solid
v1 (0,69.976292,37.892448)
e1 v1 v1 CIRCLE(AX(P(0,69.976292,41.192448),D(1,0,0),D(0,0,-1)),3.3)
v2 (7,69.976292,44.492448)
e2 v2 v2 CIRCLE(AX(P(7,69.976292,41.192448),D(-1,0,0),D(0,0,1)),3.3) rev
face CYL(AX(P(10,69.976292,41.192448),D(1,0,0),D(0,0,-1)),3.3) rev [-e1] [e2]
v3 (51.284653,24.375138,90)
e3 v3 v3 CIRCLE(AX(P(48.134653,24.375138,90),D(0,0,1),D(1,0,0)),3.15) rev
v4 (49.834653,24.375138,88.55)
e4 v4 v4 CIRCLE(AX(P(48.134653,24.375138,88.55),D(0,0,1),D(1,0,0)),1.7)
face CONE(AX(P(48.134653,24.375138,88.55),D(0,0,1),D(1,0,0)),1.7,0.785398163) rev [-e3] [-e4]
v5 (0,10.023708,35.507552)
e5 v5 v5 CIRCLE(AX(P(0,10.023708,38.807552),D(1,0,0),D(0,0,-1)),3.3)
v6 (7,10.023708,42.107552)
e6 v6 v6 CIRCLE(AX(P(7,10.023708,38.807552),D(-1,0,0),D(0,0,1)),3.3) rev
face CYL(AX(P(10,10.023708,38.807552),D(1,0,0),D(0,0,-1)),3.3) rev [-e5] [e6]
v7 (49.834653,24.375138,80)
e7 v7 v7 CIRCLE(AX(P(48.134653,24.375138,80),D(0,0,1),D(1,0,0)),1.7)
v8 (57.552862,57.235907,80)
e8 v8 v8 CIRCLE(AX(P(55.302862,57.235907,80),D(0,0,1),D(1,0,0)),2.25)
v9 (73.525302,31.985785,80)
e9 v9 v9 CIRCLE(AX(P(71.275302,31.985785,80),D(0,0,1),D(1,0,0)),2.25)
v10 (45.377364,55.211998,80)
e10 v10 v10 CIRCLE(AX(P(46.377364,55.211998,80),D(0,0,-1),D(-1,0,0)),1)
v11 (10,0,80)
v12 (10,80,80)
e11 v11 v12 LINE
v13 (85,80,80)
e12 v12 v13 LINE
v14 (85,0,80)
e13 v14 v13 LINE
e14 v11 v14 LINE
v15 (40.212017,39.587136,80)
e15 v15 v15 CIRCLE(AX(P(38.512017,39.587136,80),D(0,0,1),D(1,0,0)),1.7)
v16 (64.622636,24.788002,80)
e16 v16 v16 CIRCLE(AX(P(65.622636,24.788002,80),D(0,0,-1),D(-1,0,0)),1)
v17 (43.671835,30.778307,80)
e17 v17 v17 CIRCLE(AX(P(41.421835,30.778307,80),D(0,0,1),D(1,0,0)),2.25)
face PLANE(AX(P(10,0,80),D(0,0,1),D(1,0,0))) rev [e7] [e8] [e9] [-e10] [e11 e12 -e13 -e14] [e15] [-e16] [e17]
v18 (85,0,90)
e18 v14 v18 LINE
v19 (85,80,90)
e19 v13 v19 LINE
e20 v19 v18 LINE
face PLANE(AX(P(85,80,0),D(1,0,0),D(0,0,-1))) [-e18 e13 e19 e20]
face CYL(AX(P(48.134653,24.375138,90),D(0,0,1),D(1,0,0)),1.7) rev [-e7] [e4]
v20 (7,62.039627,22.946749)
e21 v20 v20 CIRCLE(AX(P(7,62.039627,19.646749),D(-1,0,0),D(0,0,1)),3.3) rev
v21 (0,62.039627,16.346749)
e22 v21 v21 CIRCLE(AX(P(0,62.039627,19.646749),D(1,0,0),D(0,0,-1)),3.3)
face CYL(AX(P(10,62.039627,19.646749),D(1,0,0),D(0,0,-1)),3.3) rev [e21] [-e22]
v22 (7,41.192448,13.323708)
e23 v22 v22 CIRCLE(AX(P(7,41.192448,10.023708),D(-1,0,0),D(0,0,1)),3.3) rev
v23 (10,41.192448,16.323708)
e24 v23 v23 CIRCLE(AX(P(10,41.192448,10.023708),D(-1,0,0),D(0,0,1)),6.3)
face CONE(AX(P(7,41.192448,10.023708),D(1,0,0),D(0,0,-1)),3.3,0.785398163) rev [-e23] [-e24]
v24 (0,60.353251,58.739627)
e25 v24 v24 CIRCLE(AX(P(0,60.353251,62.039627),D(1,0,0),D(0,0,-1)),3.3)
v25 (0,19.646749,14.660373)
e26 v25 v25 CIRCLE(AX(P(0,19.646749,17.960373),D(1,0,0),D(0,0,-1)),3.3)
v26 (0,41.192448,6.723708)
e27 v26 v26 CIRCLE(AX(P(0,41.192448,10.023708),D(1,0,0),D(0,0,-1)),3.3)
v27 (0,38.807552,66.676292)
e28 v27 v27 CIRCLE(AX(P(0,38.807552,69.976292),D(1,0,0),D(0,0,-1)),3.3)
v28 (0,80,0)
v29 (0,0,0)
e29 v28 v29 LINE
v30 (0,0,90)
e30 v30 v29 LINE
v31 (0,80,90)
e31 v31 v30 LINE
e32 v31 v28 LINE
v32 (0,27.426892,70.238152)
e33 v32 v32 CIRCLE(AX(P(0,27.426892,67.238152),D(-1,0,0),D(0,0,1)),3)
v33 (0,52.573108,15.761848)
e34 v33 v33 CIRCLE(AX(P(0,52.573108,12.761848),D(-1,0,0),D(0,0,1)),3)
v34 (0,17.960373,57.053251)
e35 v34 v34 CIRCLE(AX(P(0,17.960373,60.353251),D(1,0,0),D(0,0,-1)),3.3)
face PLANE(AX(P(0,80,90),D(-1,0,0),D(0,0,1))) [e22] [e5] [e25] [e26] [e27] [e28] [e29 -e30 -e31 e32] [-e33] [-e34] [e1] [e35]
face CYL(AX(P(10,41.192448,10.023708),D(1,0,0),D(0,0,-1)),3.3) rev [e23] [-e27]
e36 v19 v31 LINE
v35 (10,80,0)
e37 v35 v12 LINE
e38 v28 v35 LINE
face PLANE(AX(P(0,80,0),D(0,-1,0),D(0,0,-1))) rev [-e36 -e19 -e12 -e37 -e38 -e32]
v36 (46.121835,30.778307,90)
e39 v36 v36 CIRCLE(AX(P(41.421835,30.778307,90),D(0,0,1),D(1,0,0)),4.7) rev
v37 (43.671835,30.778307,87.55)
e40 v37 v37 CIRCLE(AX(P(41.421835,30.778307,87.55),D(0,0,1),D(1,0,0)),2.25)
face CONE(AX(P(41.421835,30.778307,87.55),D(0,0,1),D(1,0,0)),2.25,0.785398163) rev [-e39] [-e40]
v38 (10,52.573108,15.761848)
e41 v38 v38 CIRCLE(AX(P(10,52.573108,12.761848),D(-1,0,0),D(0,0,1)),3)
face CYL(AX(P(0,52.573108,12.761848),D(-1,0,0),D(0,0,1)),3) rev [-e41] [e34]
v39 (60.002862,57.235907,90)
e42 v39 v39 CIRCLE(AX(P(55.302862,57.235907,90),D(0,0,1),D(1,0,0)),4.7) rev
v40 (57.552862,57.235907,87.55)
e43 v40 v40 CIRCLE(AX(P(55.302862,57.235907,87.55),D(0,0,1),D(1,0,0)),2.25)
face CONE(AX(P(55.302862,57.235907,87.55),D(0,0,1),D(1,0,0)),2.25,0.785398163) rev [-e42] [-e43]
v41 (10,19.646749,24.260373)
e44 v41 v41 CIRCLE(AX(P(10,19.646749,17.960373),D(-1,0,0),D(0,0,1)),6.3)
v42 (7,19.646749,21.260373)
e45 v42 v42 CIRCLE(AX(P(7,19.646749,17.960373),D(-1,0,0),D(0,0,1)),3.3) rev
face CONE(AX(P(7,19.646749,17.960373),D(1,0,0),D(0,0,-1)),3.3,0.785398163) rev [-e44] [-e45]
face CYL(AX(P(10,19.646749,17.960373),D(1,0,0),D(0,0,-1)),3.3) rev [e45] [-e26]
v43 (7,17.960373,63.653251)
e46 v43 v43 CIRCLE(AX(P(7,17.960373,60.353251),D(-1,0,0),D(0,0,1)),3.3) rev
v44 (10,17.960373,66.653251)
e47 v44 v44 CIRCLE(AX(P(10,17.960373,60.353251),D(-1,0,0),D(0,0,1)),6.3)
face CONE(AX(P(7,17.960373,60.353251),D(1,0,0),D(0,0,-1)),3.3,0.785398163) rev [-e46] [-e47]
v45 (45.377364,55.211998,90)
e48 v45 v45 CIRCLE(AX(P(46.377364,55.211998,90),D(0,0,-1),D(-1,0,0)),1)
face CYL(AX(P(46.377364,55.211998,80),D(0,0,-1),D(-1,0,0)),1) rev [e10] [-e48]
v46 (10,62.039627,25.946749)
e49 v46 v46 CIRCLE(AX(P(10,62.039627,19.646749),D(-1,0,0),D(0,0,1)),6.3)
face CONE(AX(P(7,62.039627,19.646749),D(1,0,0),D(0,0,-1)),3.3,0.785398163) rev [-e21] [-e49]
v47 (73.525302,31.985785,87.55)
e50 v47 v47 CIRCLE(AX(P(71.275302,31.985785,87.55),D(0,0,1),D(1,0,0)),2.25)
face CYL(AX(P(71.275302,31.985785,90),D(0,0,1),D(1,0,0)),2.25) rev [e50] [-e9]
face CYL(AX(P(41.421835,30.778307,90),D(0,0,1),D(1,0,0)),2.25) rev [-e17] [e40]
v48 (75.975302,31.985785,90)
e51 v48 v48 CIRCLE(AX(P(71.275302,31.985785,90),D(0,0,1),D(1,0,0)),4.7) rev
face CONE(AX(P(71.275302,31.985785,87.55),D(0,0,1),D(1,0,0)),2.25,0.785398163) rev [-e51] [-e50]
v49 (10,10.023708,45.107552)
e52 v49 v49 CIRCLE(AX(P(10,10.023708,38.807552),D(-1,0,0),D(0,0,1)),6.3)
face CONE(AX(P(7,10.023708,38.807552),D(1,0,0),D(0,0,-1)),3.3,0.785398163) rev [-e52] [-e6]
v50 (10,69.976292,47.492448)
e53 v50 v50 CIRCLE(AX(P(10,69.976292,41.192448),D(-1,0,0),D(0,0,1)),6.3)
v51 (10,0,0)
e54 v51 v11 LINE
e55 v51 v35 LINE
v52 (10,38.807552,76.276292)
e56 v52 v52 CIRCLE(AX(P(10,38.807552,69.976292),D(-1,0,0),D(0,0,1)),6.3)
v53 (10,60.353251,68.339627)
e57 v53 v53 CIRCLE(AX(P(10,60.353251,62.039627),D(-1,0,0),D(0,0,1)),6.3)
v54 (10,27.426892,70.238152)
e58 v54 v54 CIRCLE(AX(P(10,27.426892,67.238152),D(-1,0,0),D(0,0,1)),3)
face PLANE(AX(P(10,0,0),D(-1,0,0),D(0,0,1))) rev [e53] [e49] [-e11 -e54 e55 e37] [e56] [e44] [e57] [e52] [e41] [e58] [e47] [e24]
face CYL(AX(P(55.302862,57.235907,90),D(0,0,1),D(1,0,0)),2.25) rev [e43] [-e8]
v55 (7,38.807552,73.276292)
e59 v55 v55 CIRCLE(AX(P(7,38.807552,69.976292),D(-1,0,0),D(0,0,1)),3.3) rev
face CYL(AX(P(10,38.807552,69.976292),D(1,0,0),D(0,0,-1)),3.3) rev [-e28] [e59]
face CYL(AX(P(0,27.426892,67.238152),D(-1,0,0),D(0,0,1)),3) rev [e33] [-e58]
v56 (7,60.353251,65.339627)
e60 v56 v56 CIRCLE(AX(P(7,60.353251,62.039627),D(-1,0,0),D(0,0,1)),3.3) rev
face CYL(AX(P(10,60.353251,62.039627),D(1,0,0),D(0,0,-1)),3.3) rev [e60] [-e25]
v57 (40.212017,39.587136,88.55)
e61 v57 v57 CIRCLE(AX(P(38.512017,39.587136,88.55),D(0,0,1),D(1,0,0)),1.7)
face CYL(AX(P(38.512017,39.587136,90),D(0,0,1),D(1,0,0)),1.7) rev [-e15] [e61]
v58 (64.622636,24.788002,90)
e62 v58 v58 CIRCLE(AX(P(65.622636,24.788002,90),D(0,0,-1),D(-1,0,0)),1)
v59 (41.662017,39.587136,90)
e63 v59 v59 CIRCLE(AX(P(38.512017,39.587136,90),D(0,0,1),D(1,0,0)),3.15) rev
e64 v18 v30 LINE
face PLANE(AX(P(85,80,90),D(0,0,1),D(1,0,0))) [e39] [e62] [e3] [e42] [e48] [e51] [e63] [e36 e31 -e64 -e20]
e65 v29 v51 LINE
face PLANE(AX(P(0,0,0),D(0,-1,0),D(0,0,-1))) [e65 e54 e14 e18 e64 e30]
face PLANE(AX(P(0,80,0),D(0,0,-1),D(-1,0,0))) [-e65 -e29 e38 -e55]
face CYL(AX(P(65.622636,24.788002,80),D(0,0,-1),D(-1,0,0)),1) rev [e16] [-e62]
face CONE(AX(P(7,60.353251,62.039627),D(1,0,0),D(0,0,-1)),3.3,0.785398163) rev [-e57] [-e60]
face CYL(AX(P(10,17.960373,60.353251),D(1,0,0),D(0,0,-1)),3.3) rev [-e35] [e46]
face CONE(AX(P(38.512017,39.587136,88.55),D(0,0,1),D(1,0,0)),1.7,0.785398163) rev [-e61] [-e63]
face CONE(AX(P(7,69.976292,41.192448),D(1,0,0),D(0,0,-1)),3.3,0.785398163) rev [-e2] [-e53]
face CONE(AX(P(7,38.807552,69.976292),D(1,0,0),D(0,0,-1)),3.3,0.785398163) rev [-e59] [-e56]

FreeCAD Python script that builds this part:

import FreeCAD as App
import Part
import Sketcher


def edges_at(feature, points):
    """Names of the edges that pass closest to the given points."""
    edges = feature.Shape.Edges
    near = lambda p: min(range(len(edges)), key=lambda i: edges[i].distToShape(Part.Vertex(*p))[0])
    return sorted({f"Edge{near(p) + 1}" for p in points})


def add_polygon(sketch, points):
    """Adds a closed chain of lines whose ends are joined by coincident constraints."""
    first, n = sketch.GeometryCount, len(points)
    for a, b in zip(points, points[1:] + points[:1]):
        sketch.addGeometry(Part.LineSegment(App.Vector(*a, 0), App.Vector(*b, 0)), False)
    for i in range(n):
        sketch.addConstraint(Sketcher.Constraint("Coincident", first + i, 2, first + (i + 1) % n, 1))

doc = App.newDocument("Part")
params = doc.addObject("Spreadsheet::Sheet", "Params")
for row, (alias, value) in enumerate([
    ("sketch1_width", "85 mm"),
    ("sketch1_height", "90 mm"),
    ("pad1_length", "80 mm"),
    ("sketch2_width", "75 mm"),
    ("sketch2_height", "80 mm"),
    ("sketch3_diameter", "6.6 mm"),
    ("hole_diameter", "6.6 mm"),
    ("sketch4_diameter", "6 mm"),
    ("hole2_diameter", "6 mm"),
    ("hole2_depth", "85 mm"),
    ("sketch5_diameter", "2 mm"),
    ("hole3_diameter", "2 mm"),
    ("sketch6_diameter", "4.5 mm"),
    ("hole4_diameter", "4.5 mm"),
    ("hole4_depth", "90 mm"),
    ("sketch7_diameter", "3.4 mm"),
    ("hole5_diameter", "3.4 mm"),
    ("hole5_depth", "90 mm"),
    ("chamfer_size", "3 mm"),
    ("chamfer2_size", "2.45 mm"),
    ("chamfer3_size", "1.45 mm"),
], start=1):
    params.set(f"A{row}", alias)
    params.set(f"B{row}", "=" + value)
    params.setAlias(f"B{row}", alias)

body = doc.addObject("PartDesign::Body", "Body")

# Sketch on XZ plane
sketch1 = body.newObject("Sketcher::SketchObject", "Sketch")
sketch1.AttachmentSupport = (doc.getObject("XZ_Plane"), [""])
sketch1.MapMode = "FlatFace"
add_polygon(sketch1, [(0, 90), (0, 0), (85, 0), (85, 90)])  # lines 0-3
sketch1.addConstraint([
    Sketcher.Constraint("Vertical", 0),
    Sketcher.Constraint("Horizontal", 1),
    Sketcher.Constraint("Vertical", 2),
    Sketcher.Constraint("Horizontal", 3),
    Sketcher.Constraint("Coincident", 0, 2, -1, 1),
    Sketcher.Constraint("DistanceX", 1, 1, 1, 2, 85.0),
    Sketcher.Constraint("DistanceY", 0, 2, 0, 1, 90.0),
])
sketch1.setExpression("Constraints[9]", "Params.sketch1_width")
sketch1.setExpression("Constraints[10]", "Params.sketch1_height")
pad1 = body.newObject("PartDesign::Pad", "Pad")
pad1.Profile = sketch1
pad1.setExpression("Length", "Params.pad1_length")
pad1.Reversed = True

# Sketch on XZ plane
sketch2 = body.newObject("Sketcher::SketchObject", "Sketch001")
sketch2.AttachmentSupport = (doc.getObject("XZ_Plane"), [""])
sketch2.MapMode = "FlatFace"
sketch2.AttachmentOffset = App.Placement(App.Vector(0, 0, -80), App.Rotation())
add_polygon(sketch2, [(85, 80), (85, 0), (10, 0), (10, 80)])  # lines 0-3
sketch2.addConstraint([
    Sketcher.Constraint("Vertical", 0),
    Sketcher.Constraint("Horizontal", 1),
    Sketcher.Constraint("Vertical", 2),
    Sketcher.Constraint("Horizontal", 3),
    Sketcher.Constraint("PointOnObject", 0, 2, -1),
    Sketcher.Constraint("DistanceX", 1, 2, 1, 1, 75.0),
    Sketcher.Constraint("DistanceY", 0, 2, 0, 1, 80.0),
    Sketcher.Constraint("DistanceX", -1, 1, 0, 2, 85.0),
])
sketch2.setExpression("Constraints[9]", "Params.sketch2_width")
sketch2.setExpression("Constraints[10]", "Params.sketch2_height")
pocket1 = body.newObject("PartDesign::Pocket", "Pocket")
pocket1.Profile = sketch2
pocket1.Type = "ThroughAll"
pocket1.Reversed = True

# Sketch on YZ plane
sketch3 = body.newObject("Sketcher::SketchObject", "Sketch002")
sketch3.AttachmentSupport = (doc.getObject("YZ_Plane"), [""])
sketch3.MapMode = "FlatFace"
sketch3.AttachmentOffset = App.Placement(App.Vector(0, 0, 10), App.Rotation())
sketch3.addGeometry([
    Part.Circle(App.Vector(10, 38.8, 0), App.Vector(0, 0, 1), 3.3),  # 0
    Part.Circle(App.Vector(18, 60.4, 0), App.Vector(0, 0, 1), 3.3),  # 1
    Part.Circle(App.Vector(38.8, 70, 0), App.Vector(0, 0, 1), 3.3),  # 2
    Part.Circle(App.Vector(60.4, 62, 0), App.Vector(0, 0, 1), 3.3),  # 3
    Part.Circle(App.Vector(70, 41.2, 0), App.Vector(0, 0, 1), 3.3),  # 4
    Part.Circle(App.Vector(62, 19.6, 0), App.Vector(0, 0, 1), 3.3),  # 5
    Part.Circle(App.Vector(41.2, 10, 0), App.Vector(0, 0, 1), 3.3),  # 6
    Part.Circle(App.Vector(19.6, 18, 0), App.Vector(0, 0, 1), 3.3),  # 7
], False)
sketch3.addConstraint([
    Sketcher.Constraint("Equal", 0, 1),
    Sketcher.Constraint("Equal", 1, 2),
    Sketcher.Constraint("Equal", 2, 3),
    Sketcher.Constraint("Equal", 3, 4),
    Sketcher.Constraint("Equal", 4, 5),
    Sketcher.Constraint("Equal", 5, 6),
    Sketcher.Constraint("Equal", 6, 7),
    Sketcher.Constraint("Diameter", 0, 6.6),
    Sketcher.Constraint("DistanceY", 0, 3, 1, 3, 21.545699),
    Sketcher.Constraint("DistanceX", 2, 3, 3, 3, 21.545699),
    Sketcher.Constraint("DistanceY", 5, 3, 4, 3, 21.545699),
    Sketcher.Constraint("DistanceX", 7, 3, 6, 3, 21.545699),
    Sketcher.Constraint("DistanceX", -1, 1, 0, 3, 10.023708),
    Sketcher.Constraint("DistanceY", -1, 1, 1, 3, 60.353251),
    Sketcher.Constraint("DistanceY", -1, 1, 2, 3, 69.976292),
    Sketcher.Constraint("DistanceX", -1, 1, 3, 3, 60.353251),
    Sketcher.Constraint("DistanceX", -1, 1, 4, 3, 69.976292),
    Sketcher.Constraint("DistanceY", -1, 1, 5, 3, 19.646749),
    Sketcher.Constraint("DistanceY", -1, 1, 6, 3, 10.023708),
    Sketcher.Constraint("DistanceX", -1, 1, 7, 3, 19.646749),
    Sketcher.Constraint("DistanceX", 1, 3, 2, 3, 20.847179),
    Sketcher.Constraint("DistanceY", 4, 3, 3, 3, 20.847179),
    Sketcher.Constraint("DistanceX", 0, 3, 5, 3, 52.015919),
    Sketcher.Constraint("DistanceY", 7, 3, 0, 3, 20.847179),
])
sketch3.setExpression("Constraints[7]", "Params.sketch3_diameter")
doc.recompute()
hole = body.newObject("PartDesign::Hole", "Hole")
hole.Profile = sketch3
hole.ThreadType = "None"
hole.setExpression("Diameter", "Params.hole_diameter")
hole.DepthType = "ThroughAll"

# Sketch on YZ plane
sketch4 = body.newObject("Sketcher::SketchObject", "Sketch003")
sketch4.AttachmentSupport = (doc.getObject("YZ_Plane"), [""])
sketch4.MapMode = "FlatFace"
sketch4.addGeometry([
    Part.Circle(App.Vector(52.6, 12.8, 0), App.Vector(0, 0, 1), 3),
    Part.Circle(App.Vector(27.4, 67.2, 0), App.Vector(0, 0, 1), 3),
], False)
sketch4.addConstraint([
    Sketcher.Constraint("Equal", 0, 1),
    Sketcher.Constraint("Diameter", 0, 6.0),
    Sketcher.Constraint("DistanceX", -1, 1, 0, 3, 52.573108),
    Sketcher.Constraint("DistanceX", -1, 1, 1, 3, 27.426892),
    Sketcher.Constraint("DistanceY", -1, 1, 0, 3, 12.761848),
    Sketcher.Constraint("DistanceY", -1, 1, 1, 3, 67.238152),
])
sketch4.setExpression("Constraints[1]", "Params.sketch4_diameter")
doc.recompute()
hole2 = body.newObject("PartDesign::Hole", "Hole001")
hole2.Profile = sketch4
hole2.ThreadType = "None"
hole2.setExpression("Diameter", "Params.hole2_diameter")
hole2.DepthType = "Dimension"
hole2.setExpression("Depth", "Params.hole2_depth")
hole2.DrillPoint = "Flat"
hole2.Reversed = True

# Sketch on XY plane
sketch5 = body.newObject("Sketcher::SketchObject", "Sketch004")
sketch5.AttachmentSupport = (doc.getObject("XY_Plane"), [""])
sketch5.MapMode = "FlatFace"
sketch5.AttachmentOffset = App.Placement(App.Vector(0, 0, 80), App.Rotation())
sketch5.addGeometry([
    Part.Circle(App.Vector(46.4, 55.2, 0), App.Vector(0, 0, 1), 1),
    Part.Circle(App.Vector(65.6, 24.8, 0), App.Vector(0, 0, 1), 1),
], False)
sketch5.addConstraint([
    Sketcher.Constraint("Equal", 0, 1),
    Sketcher.Constraint("Diameter", 0, 2.0),
    Sketcher.Constraint("DistanceX", 0, 3, 1, 3, 19.245272),
    Sketcher.Constraint("DistanceX", -1, 1, 0, 3, 46.377364),
    Sketcher.Constraint("DistanceY", -1, 1, 0, 3, 55.211998),
    Sketcher.Constraint("DistanceY", -1, 1, 1, 3, 24.788002),
])
sketch5.setExpression("Constraints[1]", "Params.sketch5_diameter")
doc.recompute()
hole3 = body.newObject("PartDesign::Hole", "Hole002")
hole3.Profile = sketch5
hole3.ThreadType = "None"
hole3.setExpression("Diameter", "Params.hole3_diameter")
hole3.DepthType = "ThroughAll"
hole3.Reversed = True

# Sketch on XY plane
sketch6 = body.newObject("Sketcher::SketchObject", "Sketch005")
sketch6.AttachmentSupport = (doc.getObject("XY_Plane"), [""])
sketch6.MapMode = "FlatFace"
sketch6.AttachmentOffset = App.Placement(App.Vector(0, 0, 90), App.Rotation())
sketch6.addGeometry([
    Part.Circle(App.Vector(71.3, 32, 0), App.Vector(0, 0, 1), 2.2),
    Part.Circle(App.Vector(41.4, 30.8, 0), App.Vector(0, 0, 1), 2.2),
    Part.Circle(App.Vector(55.3, 57.2, 0), App.Vector(0, 0, 1), 2.2),
], False)
sketch6.addConstraint([
    Sketcher.Constraint("Equal", 0, 1),
    Sketcher.Constraint("Equal", 1, 2),
    Sketcher.Constraint("Diameter", 0, 4.5),
    Sketcher.Constraint("DistanceY", 1, 3, 2, 3, 26.4576),
    Sketcher.Constraint("DistanceY", 1, 3, 0, 3, 1.207478),
    Sketcher.Constraint("DistanceX", 2, 3, 0, 3, 15.97244),
    Sketcher.Constraint("DistanceX", -1, 1, 0, 3, 71.275302),
    Sketcher.Constraint("DistanceY", -1, 1, 0, 3, 31.985785),
    Sketcher.Constraint("DistanceX", -1, 1, 1, 3, 41.421835),
])
sketch6.setExpression("Constraints[2]", "Params.sketch6_diameter")
doc.recompute()
hole4 = body.newObject("PartDesign::Hole", "Hole003")
hole4.Profile = sketch6
hole4.ThreadType = "None"
hole4.setExpression("Diameter", "Params.hole4_diameter")
hole4.DepthType = "Dimension"
hole4.setExpression("Depth", "Params.hole4_depth")
hole4.DrillPoint = "Flat"

# Sketch on XY plane
sketch7 = body.newObject("Sketcher::SketchObject", "Sketch006")
sketch7.AttachmentSupport = (doc.getObject("XY_Plane"), [""])
sketch7.MapMode = "FlatFace"
sketch7.AttachmentOffset = App.Placement(App.Vector(0, 0, 90), App.Rotation())
sketch7.addGeometry([
    Part.Circle(App.Vector(48.1, 24.4, 0), App.Vector(0, 0, 1), 1.7),
    Part.Circle(App.Vector(38.5, 39.6, 0), App.Vector(0, 0, 1), 1.7),
], False)
sketch7.addConstraint([
    Sketcher.Constraint("Equal", 0, 1),
    Sketcher.Constraint("Diameter", 0, 3.4),
    Sketcher.Constraint("DistanceX", -1, 1, 0, 3, 48.134653),
    Sketcher.Constraint("DistanceY", -1, 1, 0, 3, 24.375138),
    Sketcher.Constraint("DistanceX", -1, 1, 1, 3, 38.512017),
    Sketcher.Constraint("DistanceY", -1, 1, 1, 3, 39.587136),
])
sketch7.setExpression("Constraints[1]", "Params.sketch7_diameter")
doc.recompute()
hole5 = body.newObject("PartDesign::Hole", "Hole004")
hole5.Profile = sketch7
hole5.ThreadType = "None"
hole5.setExpression("Diameter", "Params.hole5_diameter")
hole5.DepthType = "Dimension"
hole5.setExpression("Depth", "Params.hole5_depth")
hole5.DrillPoint = "Flat"
doc.recompute()

chamfer = body.newObject("PartDesign::Chamfer", "Chamfer")
chamfer.Base = (hole5, edges_at(hole5, [
    (10, 19.647, 14.66),
    (10, 41.192, 6.724),
    (10, 62.04, 16.347),
    (10, 69.976, 37.892),
    (10, 60.353, 58.74),
    (10, 38.808, 66.676),
    (10, 17.96, 57.053),
    (10, 10.024, 35.508),
]))
chamfer.setExpression("Size", "Params.chamfer_size")
doc.recompute()

chamfer2 = body.newObject("PartDesign::Chamfer", "Chamfer001")
chamfer2.Base = (chamfer, edges_at(chamfer, [(43.672, 30.778, 90), (73.525, 31.986, 90), (57.553, 57.236, 90)]))
chamfer2.setExpression("Size", "Params.chamfer2_size")
doc.recompute()

chamfer3 = body.newObject("PartDesign::Chamfer", "Chamfer002")
chamfer3.Base = (chamfer2, edges_at(chamfer2, [(40.212, 39.587, 90), (49.835, 24.375, 90)]))
chamfer3.setExpression("Size", "Params.chamfer3_size")

doc.recompute()
